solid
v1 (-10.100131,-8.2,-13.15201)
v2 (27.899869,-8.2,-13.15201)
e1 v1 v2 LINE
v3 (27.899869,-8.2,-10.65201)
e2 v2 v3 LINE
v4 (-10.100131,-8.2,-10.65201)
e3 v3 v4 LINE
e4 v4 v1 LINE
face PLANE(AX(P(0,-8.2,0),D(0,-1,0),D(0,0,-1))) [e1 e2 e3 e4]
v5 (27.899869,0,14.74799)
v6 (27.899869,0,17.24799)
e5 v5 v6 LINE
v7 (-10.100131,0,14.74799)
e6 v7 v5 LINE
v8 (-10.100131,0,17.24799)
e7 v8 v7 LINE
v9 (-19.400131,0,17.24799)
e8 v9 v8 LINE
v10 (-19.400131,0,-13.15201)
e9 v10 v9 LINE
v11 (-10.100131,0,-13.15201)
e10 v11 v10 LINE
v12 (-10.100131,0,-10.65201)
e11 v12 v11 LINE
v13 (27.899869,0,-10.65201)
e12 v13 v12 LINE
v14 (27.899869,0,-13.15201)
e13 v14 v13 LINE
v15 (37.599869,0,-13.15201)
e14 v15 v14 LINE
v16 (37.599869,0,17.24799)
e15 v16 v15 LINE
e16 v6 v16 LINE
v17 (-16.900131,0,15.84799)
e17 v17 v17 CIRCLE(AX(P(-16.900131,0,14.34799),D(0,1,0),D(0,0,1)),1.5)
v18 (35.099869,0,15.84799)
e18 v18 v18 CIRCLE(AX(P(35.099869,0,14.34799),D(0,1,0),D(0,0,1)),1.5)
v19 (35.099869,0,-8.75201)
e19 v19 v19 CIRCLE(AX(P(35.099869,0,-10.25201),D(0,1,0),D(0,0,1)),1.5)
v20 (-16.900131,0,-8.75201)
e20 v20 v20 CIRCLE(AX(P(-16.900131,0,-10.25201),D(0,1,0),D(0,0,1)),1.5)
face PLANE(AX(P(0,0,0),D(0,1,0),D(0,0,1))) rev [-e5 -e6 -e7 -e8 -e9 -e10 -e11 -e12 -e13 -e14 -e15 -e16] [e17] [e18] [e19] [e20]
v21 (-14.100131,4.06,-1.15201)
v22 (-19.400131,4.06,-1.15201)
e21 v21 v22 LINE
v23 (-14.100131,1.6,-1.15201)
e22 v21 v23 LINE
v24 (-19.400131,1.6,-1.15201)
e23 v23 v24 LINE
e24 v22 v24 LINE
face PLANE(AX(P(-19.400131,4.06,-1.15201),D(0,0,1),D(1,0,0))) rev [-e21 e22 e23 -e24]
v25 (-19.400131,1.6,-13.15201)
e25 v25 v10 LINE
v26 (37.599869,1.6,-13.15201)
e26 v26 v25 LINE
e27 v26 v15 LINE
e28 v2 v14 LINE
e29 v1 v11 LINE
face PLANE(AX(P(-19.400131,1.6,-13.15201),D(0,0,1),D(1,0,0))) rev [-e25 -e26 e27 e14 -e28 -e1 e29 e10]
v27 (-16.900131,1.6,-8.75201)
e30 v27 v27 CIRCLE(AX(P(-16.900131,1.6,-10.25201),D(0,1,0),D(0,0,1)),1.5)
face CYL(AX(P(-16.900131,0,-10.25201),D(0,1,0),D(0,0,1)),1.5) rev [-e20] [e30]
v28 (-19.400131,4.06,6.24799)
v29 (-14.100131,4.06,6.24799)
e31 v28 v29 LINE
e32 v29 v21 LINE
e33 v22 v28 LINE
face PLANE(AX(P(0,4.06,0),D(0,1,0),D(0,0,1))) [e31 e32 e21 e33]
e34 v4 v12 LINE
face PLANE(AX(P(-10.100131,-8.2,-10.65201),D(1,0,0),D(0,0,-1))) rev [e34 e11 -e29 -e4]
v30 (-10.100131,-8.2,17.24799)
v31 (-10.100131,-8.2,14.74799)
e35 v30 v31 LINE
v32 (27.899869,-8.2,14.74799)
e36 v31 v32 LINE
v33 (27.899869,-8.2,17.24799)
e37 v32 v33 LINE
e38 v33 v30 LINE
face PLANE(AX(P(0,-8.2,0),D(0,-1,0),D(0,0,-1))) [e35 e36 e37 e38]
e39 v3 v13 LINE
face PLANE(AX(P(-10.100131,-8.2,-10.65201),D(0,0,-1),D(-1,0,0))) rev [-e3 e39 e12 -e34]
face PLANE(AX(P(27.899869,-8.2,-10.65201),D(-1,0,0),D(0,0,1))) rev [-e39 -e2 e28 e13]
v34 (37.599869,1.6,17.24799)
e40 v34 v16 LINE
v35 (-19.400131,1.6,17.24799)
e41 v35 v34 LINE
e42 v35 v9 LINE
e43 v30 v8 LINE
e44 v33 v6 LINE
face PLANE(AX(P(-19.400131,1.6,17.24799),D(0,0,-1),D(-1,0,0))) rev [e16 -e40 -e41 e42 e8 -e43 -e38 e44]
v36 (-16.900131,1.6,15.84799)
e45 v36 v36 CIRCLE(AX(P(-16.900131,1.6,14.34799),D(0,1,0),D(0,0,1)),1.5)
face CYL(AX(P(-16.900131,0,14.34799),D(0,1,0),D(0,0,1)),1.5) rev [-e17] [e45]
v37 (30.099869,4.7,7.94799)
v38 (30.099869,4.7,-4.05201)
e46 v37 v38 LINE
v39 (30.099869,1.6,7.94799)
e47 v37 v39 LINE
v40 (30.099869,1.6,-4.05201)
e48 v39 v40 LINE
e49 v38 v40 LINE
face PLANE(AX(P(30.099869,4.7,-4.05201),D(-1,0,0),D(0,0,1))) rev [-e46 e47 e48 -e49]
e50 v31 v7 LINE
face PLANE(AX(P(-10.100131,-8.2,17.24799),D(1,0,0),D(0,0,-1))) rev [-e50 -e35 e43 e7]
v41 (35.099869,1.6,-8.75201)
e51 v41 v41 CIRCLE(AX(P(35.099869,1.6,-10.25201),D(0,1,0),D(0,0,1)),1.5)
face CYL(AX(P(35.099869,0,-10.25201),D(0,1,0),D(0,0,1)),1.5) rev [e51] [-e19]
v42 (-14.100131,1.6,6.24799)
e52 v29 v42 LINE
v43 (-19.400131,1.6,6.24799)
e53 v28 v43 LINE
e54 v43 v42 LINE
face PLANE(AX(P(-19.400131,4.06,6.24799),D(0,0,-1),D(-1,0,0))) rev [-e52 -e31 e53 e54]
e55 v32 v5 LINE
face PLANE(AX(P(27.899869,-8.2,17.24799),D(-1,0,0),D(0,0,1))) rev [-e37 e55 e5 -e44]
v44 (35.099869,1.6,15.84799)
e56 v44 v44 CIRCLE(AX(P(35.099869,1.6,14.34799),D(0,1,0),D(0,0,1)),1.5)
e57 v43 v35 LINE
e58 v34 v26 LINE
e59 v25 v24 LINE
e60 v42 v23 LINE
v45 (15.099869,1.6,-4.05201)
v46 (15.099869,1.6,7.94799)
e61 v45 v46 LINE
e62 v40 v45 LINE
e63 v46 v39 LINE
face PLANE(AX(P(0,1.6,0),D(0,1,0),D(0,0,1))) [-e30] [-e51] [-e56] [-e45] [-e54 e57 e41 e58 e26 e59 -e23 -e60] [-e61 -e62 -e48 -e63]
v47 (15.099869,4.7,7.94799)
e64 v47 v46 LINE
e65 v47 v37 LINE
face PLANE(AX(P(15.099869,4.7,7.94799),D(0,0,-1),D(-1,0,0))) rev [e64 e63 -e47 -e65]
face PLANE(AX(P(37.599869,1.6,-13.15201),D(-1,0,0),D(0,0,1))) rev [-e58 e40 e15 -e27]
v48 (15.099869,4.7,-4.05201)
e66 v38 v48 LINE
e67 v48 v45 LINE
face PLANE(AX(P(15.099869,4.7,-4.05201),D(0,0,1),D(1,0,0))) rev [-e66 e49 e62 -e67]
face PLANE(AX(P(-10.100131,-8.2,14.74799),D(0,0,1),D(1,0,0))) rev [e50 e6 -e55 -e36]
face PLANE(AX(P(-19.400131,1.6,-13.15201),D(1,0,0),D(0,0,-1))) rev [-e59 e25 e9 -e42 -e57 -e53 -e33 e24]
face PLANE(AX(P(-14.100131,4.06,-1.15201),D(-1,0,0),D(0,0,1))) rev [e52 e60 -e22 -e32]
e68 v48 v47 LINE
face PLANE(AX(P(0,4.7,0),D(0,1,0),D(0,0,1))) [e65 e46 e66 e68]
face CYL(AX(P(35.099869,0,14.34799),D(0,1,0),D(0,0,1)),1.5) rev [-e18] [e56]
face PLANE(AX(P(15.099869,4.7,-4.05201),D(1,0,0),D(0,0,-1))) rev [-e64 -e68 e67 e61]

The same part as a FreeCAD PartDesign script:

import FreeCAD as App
import Part
import Sketcher

V = App.Vector
Q = App.Units.Quantity


def add_polygon(sketch, points):
    """Adds a closed chain of lines whose ends are joined by coincident constraints."""
    first, n = sketch.GeometryCount, len(points)
    for a, b in zip(points, points[1:] + points[:1]):
        sketch.addGeometry(Part.LineSegment(App.Vector(*a, 0), App.Vector(*b, 0)), False)
    for i in range(n):
        sketch.addConstraint(Sketcher.Constraint("Coincident", first + i, 2, first + (i + 1) % n, 1))

doc = App.newDocument("Part")
params = doc.addObject("Spreadsheet::Sheet", "Params")
for row, (alias, value) in enumerate([
    ("sketch1_width", "57 mm"),
    ("sketch1_height", "30.4 mm"),
    ("pad1_length", "1.6 mm"),
    ("sketch2_width", "15 mm"),
    ("sketch2_height", "12 mm"),
    ("pad2_length", "3.1 mm"),
    ("sketch3_width", "5.3 mm"),
    ("sketch3_height", "7.4 mm"),
    ("pad3_length", "2.46 mm"),
    ("sketch4_diameter", "3 mm"),
    ("sketch5_width", "38 mm"),
    ("sketch5_height", "2.5 mm"),
    ("pad4_length", "8.2 mm"),
], start=1):
    params.set(f"A{row}", alias)
    params.set(f"B{row}", "=" + value)
    params.setAlias(f"B{row}", alias)

body = doc.addObject("PartDesign::Body", "Body")

# Sketch on XZ plane
sketch1 = doc.addObject("Sketcher::SketchObject", "Sketch")
body.addObject(sketch1)
sketch1.AttachmentSupport = (doc.XZ_Plane, [""])
sketch1.MapMode = "FlatFace"
add_polygon(sketch1, [(-19, -13), (-19, 17), (38, 17), (38, -13)])  # lines 0-3
sketch1.addConstraint(Sketcher.Constraint("Vertical", 0))
sketch1.addConstraint(Sketcher.Constraint("Horizontal", 1))
sketch1.addConstraint(Sketcher.Constraint("Vertical", 2))
sketch1.addConstraint(Sketcher.Constraint("Horizontal", 3))
sketch1.addConstraint(Sketcher.Constraint("DistanceX", 1, 1, 1, 2, Q("57 mm")))
sketch1.addConstraint(Sketcher.Constraint("DistanceY", 0, 1, 0, 2, Q("30.4 mm")))
sketch1.addConstraint(Sketcher.Constraint("DistanceX", 0, 2, -1, 1, Q("19.400131 mm")))
sketch1.addConstraint(Sketcher.Constraint("DistanceY", -1, 1, 0, 2, Q("17.24799 mm")))
sketch1.setExpression("Constraints[8]", "Params.sketch1_width")
sketch1.setExpression("Constraints[9]", "Params.sketch1_height")
pad1 = doc.addObject("PartDesign::Pad", "Pad")
body.addObject(pad1)
pad1.Profile = sketch1
pad1.setExpression("Length", "Params.pad1_length")
pad1.Reversed = True

# Sketch on XZ plane
sketch2 = doc.addObject("Sketcher::SketchObject", "Sketch001")
body.addObject(sketch2)
sketch2.AttachmentSupport = (doc.XZ_Plane, [""])
sketch2.MapMode = "FlatFace"
sketch2.AttachmentOffset = App.Placement(V(0, 0, -1.6), App.Rotation())
add_polygon(sketch2, [(15, -4), (15, 8), (30, 8), (30, -4)])  # lines 0-3
sketch2.addConstraint(Sketcher.Constraint("Vertical", 0))
sketch2.addConstraint(Sketcher.Constraint("Horizontal", 1))
sketch2.addConstraint(Sketcher.Constraint("Vertical", 2))
sketch2.addConstraint(Sketcher.Constraint("Horizontal", 3))
sketch2.addConstraint(Sketcher.Constraint("DistanceX", 1, 1, 1, 2, Q("15 mm")))
sketch2.addConstraint(Sketcher.Constraint("DistanceY", 0, 1, 0, 2, Q("12 mm")))
sketch2.addConstraint(Sketcher.Constraint("DistanceX", -1, 1, 0, 2, Q("15.099869 mm")))
sketch2.addConstraint(Sketcher.Constraint("DistanceY", -1, 1, 0, 2, Q("7.94799 mm")))
sketch2.setExpression("Constraints[8]", "Params.sketch2_width")
sketch2.setExpression("Constraints[9]", "Params.sketch2_height")
pad2 = doc.addObject("PartDesign::Pad", "Pad001")
body.addObject(pad2)
pad2.Profile = sketch2
pad2.setExpression("Length", "Params.pad2_length")
pad2.Reversed = True

# Sketch on XZ plane
sketch3 = doc.addObject("Sketcher::SketchObject", "Sketch002")
body.addObject(sketch3)
sketch3.AttachmentSupport = (doc.XZ_Plane, [""])
sketch3.MapMode = "FlatFace"
sketch3.AttachmentOffset = App.Placement(V(0, 0, -1.6), App.Rotation())
add_polygon(sketch3, [(-19, -1), (-19, 6), (-14, 6), (-14, -1)])  # lines 0-3
sketch3.addConstraint(Sketcher.Constraint("Vertical", 0))
sketch3.addConstraint(Sketcher.Constraint("Horizontal", 1))
sketch3.addConstraint(Sketcher.Constraint("Vertical", 2))
sketch3.addConstraint(Sketcher.Constraint("Horizontal", 3))
sketch3.addConstraint(Sketcher.Constraint("DistanceX", 1, 1, 1, 2, Q("5.3 mm")))
sketch3.addConstraint(Sketcher.Constraint("DistanceY", 0, 1, 0, 2, Q("7.4 mm")))
sketch3.addConstraint(Sketcher.Constraint("DistanceX", 0, 2, -1, 1, Q("19.400131 mm")))
sketch3.addConstraint(Sketcher.Constraint("DistanceY", -1, 1, 0, 2, Q("6.24799 mm")))
sketch3.setExpression("Constraints[8]", "Params.sketch3_width")
sketch3.setExpression("Constraints[9]", "Params.sketch3_height")
pad3 = doc.addObject("PartDesign::Pad", "Pad002")
body.addObject(pad3)
pad3.Profile = sketch3
pad3.setExpression("Length", "Params.pad3_length")
pad3.Reversed = True

# Sketch on XZ plane
sketch4 = doc.addObject("Sketcher::SketchObject", "Sketch003")
body.addObject(sketch4)
sketch4.AttachmentSupport = (doc.XZ_Plane, [""])
sketch4.MapMode = "FlatFace"
sketch4.AttachmentOffset = App.Placement(V(0, 0, -1.6), App.Rotation())
sketch4.addGeometry(Part.Circle(V(-16.9, -10.3, 0), V(0, 0, 1), 1.5), False)
sketch4.addGeometry(Part.Circle(V(-16.9, 14.3, 0), V(0, 0, 1), 1.5), False)
sketch4.addGeometry(Part.Circle(V(35.1, 14.3, 0), V(0, 0, 1), 1.5), False)
sketch4.addGeometry(Part.Circle(V(35.1, -10.3, 0), V(0, 0, 1), 1.5), False)
sketch4.addConstraint(Sketcher.Constraint("Equal", 0, 1))
sketch4.addConstraint(Sketcher.Constraint("Equal", 1, 2))
sketch4.addConstraint(Sketcher.Constraint("Equal", 2, 3))
sketch4.addConstraint(Sketcher.Constraint("Horizontal", 1, 3, 2, 3))
sketch4.addConstraint(Sketcher.Constraint("Horizontal", 0, 3, 3, 3))
sketch4.addConstraint(Sketcher.Constraint("Vertical", 0, 3, 1, 3))
sketch4.addConstraint(Sketcher.Constraint("Vertical", 2, 3, 3, 3))
sketch4.addConstraint(Sketcher.Constraint("Diameter", 0, Q("3 mm")))
sketch4.addConstraint(Sketcher.Constraint("DistanceX", 1, 3, 2, 3, Q("52 mm")))
sketch4.addConstraint(Sketcher.Constraint("DistanceY", 0, 3, 1, 3, Q("24.6 mm")))
sketch4.addConstraint(Sketcher.Constraint("DistanceX", 0, 3, -1, 1, Q("16.900131 mm")))
sketch4.addConstraint(Sketcher.Constraint("DistanceY", 0, 3, -1, 1, Q("10.25201 mm")))
sketch4.setExpression("Constraints[7]", "Params.sketch4_diameter")
pocket1 = doc.addObject("PartDesign::Pocket", "Pocket")
body.addObject(pocket1)
pocket1.Profile = sketch4
pocket1.Type = "ThroughAll"
pocket1.Reversed = True

# Sketch on XZ plane
sketch5 = doc.addObject("Sketcher::SketchObject", "Sketch004")
body.addObject(sketch5)
sketch5.AttachmentSupport = (doc.XZ_Plane, [""])
sketch5.MapMode = "FlatFace"
add_polygon(sketch5, [(-10.1, 17.2), (-10.1, 14.7), (27.9, 14.7), (27.9, 17.2)])  # lines 0-3
add_polygon(sketch5, [(-10.1, -10.7), (-10.1, -13.2), (27.9, -13.2), (27.9, -10.7)])  # lines 4-7
sketch5.addConstraint(Sketcher.Constraint("Vertical", 0))
sketch5.addConstraint(Sketcher.Constraint("Horizontal", 1))
sketch5.addConstraint(Sketcher.Constraint("Vertical", 2))
sketch5.addConstraint(Sketcher.Constraint("Horizontal", 3))
sketch5.addConstraint(Sketcher.Constraint("Vertical", 4))
sketch5.addConstraint(Sketcher.Constraint("Horizontal", 5))
sketch5.addConstraint(Sketcher.Constraint("Vertical", 6))
sketch5.addConstraint(Sketcher.Constraint("Horizontal", 7))
sketch5.addConstraint(Sketcher.Constraint("Vertical", 3, 2, 4, 2))
sketch5.addConstraint(Sketcher.Constraint("Vertical", 2, 2, 5, 2))
sketch5.addConstraint(Sketcher.Constraint("Equal", 2, 4))
sketch5.addConstraint(Sketcher.Constraint("DistanceX", 1, 1, 1, 2, Q("38 mm")))
sketch5.addConstraint(Sketcher.Constraint("DistanceY", 0, 2, 0, 1, Q("2.5 mm")))
sketch5.addConstraint(Sketcher.Constraint("DistanceY", 4, 2, 0, 2, Q("27.9 mm")))
sketch5.addConstraint(Sketcher.Constraint("DistanceX", 0, 2, -1, 1, Q("10.100131 mm")))
sketch5.addConstraint(Sketcher.Constraint("DistanceY", -1, 1, 0, 2, Q("14.74799 mm")))
sketch5.setExpression("Constraints[19]", "Params.sketch5_width")
sketch5.setExpression("Constraints[20]", "Params.sketch5_height")
pad4 = doc.addObject("PartDesign::Pad", "Pad003")
body.addObject(pad4)
pad4.Profile = sketch5
pad4.setExpression("Length", "Params.pad4_length")

doc.recompute()
